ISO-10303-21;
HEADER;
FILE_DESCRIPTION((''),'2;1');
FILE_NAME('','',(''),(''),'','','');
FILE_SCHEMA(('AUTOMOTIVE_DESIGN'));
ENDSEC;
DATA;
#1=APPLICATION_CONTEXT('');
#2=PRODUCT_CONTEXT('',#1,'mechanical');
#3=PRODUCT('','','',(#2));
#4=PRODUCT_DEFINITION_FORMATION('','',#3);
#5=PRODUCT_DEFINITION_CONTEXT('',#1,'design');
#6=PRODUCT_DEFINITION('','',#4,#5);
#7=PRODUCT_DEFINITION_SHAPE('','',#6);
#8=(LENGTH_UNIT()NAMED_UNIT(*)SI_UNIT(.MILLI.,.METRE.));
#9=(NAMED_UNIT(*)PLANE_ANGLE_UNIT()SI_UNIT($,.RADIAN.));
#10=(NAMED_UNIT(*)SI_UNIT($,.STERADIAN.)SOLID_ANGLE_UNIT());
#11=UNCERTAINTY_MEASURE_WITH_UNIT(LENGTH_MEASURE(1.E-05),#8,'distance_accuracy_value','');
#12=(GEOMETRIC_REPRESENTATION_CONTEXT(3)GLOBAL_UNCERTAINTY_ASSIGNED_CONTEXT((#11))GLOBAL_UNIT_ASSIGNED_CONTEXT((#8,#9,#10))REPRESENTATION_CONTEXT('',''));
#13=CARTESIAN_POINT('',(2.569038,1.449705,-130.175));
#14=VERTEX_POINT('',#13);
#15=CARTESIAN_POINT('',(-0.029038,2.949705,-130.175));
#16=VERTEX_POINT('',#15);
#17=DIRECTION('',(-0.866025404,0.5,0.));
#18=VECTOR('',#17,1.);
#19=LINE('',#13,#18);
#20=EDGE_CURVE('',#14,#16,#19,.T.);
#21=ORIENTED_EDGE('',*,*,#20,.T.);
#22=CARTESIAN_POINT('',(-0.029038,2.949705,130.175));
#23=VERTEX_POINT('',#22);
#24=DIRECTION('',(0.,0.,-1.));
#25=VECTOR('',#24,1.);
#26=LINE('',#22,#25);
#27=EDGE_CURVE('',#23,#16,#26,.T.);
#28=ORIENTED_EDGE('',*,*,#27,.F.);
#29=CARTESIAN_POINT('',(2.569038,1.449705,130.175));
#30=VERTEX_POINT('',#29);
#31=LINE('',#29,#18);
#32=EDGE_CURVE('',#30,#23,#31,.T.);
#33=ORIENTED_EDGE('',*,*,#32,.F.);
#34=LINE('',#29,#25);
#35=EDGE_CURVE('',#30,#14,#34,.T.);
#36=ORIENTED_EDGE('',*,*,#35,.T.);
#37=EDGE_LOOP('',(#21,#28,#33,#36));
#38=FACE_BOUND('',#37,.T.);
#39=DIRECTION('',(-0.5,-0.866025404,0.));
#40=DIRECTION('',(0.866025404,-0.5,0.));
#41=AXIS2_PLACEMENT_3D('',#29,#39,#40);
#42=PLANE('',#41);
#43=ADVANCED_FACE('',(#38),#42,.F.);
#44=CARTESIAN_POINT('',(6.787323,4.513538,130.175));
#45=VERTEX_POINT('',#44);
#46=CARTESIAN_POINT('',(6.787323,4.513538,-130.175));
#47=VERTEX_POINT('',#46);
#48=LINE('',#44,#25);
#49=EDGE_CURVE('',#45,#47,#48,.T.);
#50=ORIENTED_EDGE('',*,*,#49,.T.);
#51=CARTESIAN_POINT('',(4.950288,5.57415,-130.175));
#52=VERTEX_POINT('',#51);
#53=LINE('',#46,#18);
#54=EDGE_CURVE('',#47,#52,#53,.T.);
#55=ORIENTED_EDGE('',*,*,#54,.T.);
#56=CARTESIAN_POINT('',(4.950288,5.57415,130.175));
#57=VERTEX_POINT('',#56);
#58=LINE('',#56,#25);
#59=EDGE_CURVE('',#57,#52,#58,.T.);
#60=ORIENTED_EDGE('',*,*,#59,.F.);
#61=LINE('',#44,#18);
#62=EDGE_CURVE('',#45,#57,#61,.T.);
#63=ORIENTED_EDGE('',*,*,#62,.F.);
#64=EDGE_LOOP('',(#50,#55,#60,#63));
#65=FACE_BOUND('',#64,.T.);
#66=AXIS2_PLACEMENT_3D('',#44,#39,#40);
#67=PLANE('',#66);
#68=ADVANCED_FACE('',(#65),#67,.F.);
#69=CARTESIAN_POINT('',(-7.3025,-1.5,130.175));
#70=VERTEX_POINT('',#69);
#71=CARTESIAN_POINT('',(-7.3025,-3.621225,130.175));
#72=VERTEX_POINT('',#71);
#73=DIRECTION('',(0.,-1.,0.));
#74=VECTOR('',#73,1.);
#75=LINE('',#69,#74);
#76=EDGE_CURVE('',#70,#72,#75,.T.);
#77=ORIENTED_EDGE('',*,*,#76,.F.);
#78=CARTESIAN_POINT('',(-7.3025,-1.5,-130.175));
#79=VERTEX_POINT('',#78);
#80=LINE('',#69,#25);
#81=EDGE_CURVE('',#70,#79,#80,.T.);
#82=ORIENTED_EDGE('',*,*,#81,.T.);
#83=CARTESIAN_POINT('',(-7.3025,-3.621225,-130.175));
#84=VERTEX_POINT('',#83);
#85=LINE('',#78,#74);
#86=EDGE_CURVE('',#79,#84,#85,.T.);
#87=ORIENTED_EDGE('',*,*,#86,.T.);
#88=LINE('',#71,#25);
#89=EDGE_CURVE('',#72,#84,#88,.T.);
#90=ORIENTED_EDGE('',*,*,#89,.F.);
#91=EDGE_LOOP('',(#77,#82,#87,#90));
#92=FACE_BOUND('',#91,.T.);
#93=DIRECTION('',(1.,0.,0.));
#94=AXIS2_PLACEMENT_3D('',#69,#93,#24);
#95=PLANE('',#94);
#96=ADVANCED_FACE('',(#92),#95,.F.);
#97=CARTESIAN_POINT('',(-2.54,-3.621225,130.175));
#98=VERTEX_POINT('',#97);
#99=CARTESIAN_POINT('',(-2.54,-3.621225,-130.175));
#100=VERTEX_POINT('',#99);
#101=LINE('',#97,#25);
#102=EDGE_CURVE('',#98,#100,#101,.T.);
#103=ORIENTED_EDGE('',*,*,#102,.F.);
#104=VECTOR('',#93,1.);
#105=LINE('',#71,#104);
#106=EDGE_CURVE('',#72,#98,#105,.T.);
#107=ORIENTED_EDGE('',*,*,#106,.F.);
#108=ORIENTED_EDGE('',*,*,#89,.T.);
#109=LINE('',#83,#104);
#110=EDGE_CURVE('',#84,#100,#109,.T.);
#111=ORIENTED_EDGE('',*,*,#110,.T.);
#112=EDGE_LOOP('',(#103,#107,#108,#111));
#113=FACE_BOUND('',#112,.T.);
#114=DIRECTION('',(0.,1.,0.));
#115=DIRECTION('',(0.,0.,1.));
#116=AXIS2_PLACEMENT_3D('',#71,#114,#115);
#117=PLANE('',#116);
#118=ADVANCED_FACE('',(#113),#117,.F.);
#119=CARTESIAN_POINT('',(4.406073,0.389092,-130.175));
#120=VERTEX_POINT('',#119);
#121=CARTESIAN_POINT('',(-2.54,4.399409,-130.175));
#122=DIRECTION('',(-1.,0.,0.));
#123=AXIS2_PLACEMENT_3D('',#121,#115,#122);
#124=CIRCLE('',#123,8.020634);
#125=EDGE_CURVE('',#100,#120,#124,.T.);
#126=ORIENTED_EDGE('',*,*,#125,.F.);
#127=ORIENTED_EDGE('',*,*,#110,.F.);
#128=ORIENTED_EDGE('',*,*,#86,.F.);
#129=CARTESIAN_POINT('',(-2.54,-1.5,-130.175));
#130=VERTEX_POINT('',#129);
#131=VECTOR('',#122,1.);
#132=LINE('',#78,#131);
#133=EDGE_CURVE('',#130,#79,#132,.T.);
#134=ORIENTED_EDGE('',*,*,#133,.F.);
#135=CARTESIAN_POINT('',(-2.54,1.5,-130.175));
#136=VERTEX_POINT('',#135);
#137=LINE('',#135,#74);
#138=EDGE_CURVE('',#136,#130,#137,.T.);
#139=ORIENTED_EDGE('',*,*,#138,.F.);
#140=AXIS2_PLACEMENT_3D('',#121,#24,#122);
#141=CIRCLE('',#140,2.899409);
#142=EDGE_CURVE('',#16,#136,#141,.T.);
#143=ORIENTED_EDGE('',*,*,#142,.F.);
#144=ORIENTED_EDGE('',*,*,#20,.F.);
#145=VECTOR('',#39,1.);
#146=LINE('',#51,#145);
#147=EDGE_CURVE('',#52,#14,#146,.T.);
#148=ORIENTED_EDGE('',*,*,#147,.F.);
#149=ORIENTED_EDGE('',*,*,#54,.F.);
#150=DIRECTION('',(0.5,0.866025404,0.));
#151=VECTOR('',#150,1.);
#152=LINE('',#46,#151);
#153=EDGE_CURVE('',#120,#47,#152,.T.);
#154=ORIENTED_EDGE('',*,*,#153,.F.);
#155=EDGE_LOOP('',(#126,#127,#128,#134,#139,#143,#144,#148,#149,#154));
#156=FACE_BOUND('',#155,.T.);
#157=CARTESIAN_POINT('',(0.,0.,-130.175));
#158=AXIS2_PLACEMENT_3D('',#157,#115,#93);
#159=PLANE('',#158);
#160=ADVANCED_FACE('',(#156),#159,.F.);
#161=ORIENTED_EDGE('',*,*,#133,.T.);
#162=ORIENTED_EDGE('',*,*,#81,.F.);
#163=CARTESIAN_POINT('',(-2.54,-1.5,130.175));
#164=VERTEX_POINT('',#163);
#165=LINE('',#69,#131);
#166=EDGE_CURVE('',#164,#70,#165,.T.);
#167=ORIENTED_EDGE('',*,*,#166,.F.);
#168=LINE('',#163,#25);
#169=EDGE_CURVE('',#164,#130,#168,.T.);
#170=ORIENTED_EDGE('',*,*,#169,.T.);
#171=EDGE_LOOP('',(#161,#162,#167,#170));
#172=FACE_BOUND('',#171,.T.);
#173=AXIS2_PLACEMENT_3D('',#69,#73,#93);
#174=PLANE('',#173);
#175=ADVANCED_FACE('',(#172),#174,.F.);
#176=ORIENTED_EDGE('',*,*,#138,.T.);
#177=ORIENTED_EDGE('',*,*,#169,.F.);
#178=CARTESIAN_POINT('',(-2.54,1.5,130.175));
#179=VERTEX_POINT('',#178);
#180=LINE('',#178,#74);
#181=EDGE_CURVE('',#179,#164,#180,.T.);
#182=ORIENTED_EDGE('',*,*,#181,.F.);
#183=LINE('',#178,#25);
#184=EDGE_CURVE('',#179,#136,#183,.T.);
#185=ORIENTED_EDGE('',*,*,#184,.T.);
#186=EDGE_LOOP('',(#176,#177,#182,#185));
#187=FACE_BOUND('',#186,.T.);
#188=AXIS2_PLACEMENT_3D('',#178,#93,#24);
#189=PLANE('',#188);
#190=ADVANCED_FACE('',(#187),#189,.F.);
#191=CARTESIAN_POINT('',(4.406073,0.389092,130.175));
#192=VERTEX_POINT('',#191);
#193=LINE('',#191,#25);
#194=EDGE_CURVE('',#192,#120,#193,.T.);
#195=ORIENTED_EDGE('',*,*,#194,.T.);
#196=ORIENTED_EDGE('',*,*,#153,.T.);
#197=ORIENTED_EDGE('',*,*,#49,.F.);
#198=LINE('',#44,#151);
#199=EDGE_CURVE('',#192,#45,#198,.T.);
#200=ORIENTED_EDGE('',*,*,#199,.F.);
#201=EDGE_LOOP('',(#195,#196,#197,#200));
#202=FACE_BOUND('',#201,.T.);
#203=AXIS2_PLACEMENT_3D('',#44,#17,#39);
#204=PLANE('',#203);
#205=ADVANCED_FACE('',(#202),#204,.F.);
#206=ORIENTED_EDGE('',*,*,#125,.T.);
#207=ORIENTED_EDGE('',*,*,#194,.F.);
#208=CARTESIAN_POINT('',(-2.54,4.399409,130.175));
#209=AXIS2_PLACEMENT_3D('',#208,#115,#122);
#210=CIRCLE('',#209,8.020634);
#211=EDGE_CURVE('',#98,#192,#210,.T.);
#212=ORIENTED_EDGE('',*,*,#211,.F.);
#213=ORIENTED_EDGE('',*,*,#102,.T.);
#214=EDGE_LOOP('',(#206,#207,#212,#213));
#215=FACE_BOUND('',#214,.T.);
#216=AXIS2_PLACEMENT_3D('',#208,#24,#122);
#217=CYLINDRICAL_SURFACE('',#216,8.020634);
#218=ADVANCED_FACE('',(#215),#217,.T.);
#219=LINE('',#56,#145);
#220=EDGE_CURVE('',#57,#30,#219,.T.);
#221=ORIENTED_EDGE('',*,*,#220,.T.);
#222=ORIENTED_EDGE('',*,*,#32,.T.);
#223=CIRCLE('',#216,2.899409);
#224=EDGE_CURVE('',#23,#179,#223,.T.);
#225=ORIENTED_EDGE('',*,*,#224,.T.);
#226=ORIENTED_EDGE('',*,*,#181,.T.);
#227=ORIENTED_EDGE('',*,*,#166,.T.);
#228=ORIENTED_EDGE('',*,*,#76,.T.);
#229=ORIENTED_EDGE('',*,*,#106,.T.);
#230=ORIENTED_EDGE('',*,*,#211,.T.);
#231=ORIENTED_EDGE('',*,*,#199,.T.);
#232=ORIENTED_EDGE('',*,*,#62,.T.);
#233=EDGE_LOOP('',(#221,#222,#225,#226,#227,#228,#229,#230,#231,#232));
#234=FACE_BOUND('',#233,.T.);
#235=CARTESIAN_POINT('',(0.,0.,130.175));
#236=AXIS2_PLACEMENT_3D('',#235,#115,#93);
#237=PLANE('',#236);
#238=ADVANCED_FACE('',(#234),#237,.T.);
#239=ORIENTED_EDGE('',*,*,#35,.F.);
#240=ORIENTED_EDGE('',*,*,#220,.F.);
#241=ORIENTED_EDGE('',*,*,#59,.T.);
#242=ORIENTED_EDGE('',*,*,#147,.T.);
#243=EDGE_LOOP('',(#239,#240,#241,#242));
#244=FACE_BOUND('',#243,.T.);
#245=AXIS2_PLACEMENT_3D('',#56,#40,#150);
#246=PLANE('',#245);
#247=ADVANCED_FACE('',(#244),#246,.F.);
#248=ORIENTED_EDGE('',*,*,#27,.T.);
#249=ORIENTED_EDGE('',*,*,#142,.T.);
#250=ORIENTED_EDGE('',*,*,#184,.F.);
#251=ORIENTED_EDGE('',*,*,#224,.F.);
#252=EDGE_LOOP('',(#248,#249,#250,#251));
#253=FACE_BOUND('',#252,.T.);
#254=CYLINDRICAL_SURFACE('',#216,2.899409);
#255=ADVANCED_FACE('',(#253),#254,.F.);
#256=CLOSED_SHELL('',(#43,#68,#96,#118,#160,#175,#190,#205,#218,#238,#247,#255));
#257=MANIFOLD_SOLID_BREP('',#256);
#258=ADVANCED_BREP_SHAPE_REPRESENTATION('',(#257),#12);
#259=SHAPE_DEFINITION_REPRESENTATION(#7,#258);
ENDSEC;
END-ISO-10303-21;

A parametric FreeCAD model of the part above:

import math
import FreeCAD as App
import Part
import Sketcher
Q = App.Units.Quantity

doc = App.newDocument("Part")
params = doc.addObject("Spreadsheet::Sheet", "Params")
for row, (alias, value) in enumerate([
    ("sketch1_width", "0.1875 in"),
    ("pad1_length", "10.25 in"),
    ("sketch2_length", "0.1875 in"),
    ("pad2_length", "10.25 in"),
    ("sketch3_width", "0.1875 in"),
    ("sketch3_length", "0.1875 in"),
    ("pad3_length", "10.25 in"),
], start=1):
    params.set(f"A{row}", alias)
    params.set(f"B{row}", "=" + value)
    params.setAlias(f"B{row}", alias)

body = doc.addObject("PartDesign::Body", "Body")

# Sketch on XY plane
sketch1 = body.newObject("Sketcher::SketchObject", "Sketch")
sketch1.AttachmentSupport = (doc.getObject("XY_Plane"), [""])
sketch1.MapMode = "FlatFace"
sketch1.addGeometry(Part.LineSegment(App.Vector(-7.3, -1.5, 0), App.Vector(-7.3, -3.6, 0)), False)
sketch1.addGeometry(Part.LineSegment(App.Vector(-7.3, -3.6, 0), App.Vector(-2.5, -3.6, 0)), False)
sketch1.addGeometry(Part.LineSegment(App.Vector(-2.5, -3.6, 0), App.Vector(-2.5, -1.5, 0)), False)
sketch1.addGeometry(Part.LineSegment(App.Vector(-2.5, -1.5, 0), App.Vector(-7.3, -1.5, 0)), False)
sketch1.addConstraint(Sketcher.Constraint("Coincident", 0, 2, 1, 1))
sketch1.addConstraint(Sketcher.Constraint("Coincident", 1, 2, 2, 1))
sketch1.addConstraint(Sketcher.Constraint("Coincident", 2, 2, 3, 1))
sketch1.addConstraint(Sketcher.Constraint("Coincident", 3, 2, 0, 1))
sketch1.addConstraint(Sketcher.Constraint("Vertical", 0))
sketch1.addConstraint(Sketcher.Constraint("Horizontal", 1))
sketch1.addConstraint(Sketcher.Constraint("Vertical", 2))
sketch1.addConstraint(Sketcher.Constraint("Horizontal", 3))
sketch1.addConstraint(Sketcher.Constraint("DistanceX", 1, 2, -1, 1, Q("0.1 in")))
sketch1.addConstraint(Sketcher.Constraint("DistanceX", 1, 1, 1, 2, Q("0.1875 in")))
sketch1.addConstraint(Sketcher.Constraint("DistanceY", 2, 2, -1, 1, Q("1.5 mm")))
sketch1.addConstraint(Sketcher.Constraint("DistanceY", 0, 2, 0, 1, Q("2.121225 mm")))
sketch1.setExpression("Constraints[9]", "Params.sketch1_width")
pad1 = body.newObject("PartDesign::Pad", "Pad")
pad1.Profile = sketch1
pad1.setExpression("Length", "Params.pad1_length")
pad1.Midplane = True
body2 = doc.addObject("PartDesign::Body", "Body001")

# Sketch on XY plane
sketch2 = body2.newObject("Sketcher::SketchObject", "Sketch001")
sketch2.AttachmentSupport = (doc.getObject("XY_Plane001"), [""])
sketch2.MapMode = "FlatFace"
sketch2.addGeometry(Part.LineSegment(App.Vector(5, 5.6, 0), App.Vector(2.6, 1.4, 0)), False)
sketch2.addGeometry(Part.LineSegment(App.Vector(2.6, 1.4, 0), App.Vector(4.4, 0.4, 0)), False)
sketch2.addGeometry(Part.LineSegment(App.Vector(4.4, 0.4, 0), App.Vector(6.8, 4.5, 0)), False)
sketch2.addGeometry(Part.LineSegment(App.Vector(6.8, 4.5, 0), App.Vector(5, 5.6, 0)), False)
sketch2.addConstraint(Sketcher.Constraint("Coincident", 0, 2, 1, 1))
sketch2.addConstraint(Sketcher.Constraint("Coincident", 1, 2, 2, 1))
sketch2.addConstraint(Sketcher.Constraint("Coincident", 2, 2, 3, 1))
sketch2.addConstraint(Sketcher.Constraint("Coincident", 3, 2, 0, 1))
sketch2.addConstraint(Sketcher.Constraint("Perpendicular", 0, 1))
sketch2.addConstraint(Sketcher.Constraint("Perpendicular", 1, 2))
sketch2.addConstraint(Sketcher.Constraint("Perpendicular", 2, 3))
sketch2.addConstraint(Sketcher.Constraint("Angle", 0, Q("-120 deg")))
sketch2.addConstraint(Sketcher.Constraint("Distance", 0, Q("0.1875 in")))
sketch2.addConstraint(Sketcher.Constraint("DistanceX", -1, 1, 0, 2, Q("2.569038 mm")))
sketch2.addConstraint(Sketcher.Constraint("DistanceY", -1, 1, 1, 2, Q("0.389092 mm")))
sketch2.addConstraint(Sketcher.Constraint("DistanceY", -1, 1, 3, 2, Q("5.57415 mm")))
sketch2.setExpression("Constraints[8]", "Params.sketch2_length")
pad2 = body2.newObject("PartDesign::Pad", "Pad001")
pad2.Profile = sketch2
pad2.setExpression("Length", "Params.pad2_length")
pad2.Midplane = True
body.AllowCompound = True
doc.recompute()

boolean = body.newObject("PartDesign::Boolean", "Boolean")
boolean.Type = "Fuse"
boolean.addObjects([body2])

# Sketch on XY plane
sketch3 = body.newObject("Sketcher::SketchObject", "Sketch002")
sketch3.AttachmentSupport = (doc.getObject("XY_Plane"), [""])
sketch3.MapMode = "FlatFace"
sketch3.addGeometry(Part.LineSegment(App.Vector(-2.5, -1.5, 0), App.Vector(-7.3, -1.5, 0)), False)
sketch3.addGeometry(Part.LineSegment(App.Vector(-7.3, -1.5, 0), App.Vector(-7.3, -3.6, 0)), False)
sketch3.addGeometry(Part.LineSegment(App.Vector(-7.3, -3.6, 0), App.Vector(-2.5, -3.6, 0)), False)
sketch3.addGeometry(Part.ArcOfCircle(Part.Circle(App.Vector(-2.5, 4.4, 0), App.Vector(0, 0, 1), 8), math.radians(-90), math.radians(-30)), False)
sketch3.addGeometry(Part.LineSegment(App.Vector(4.4, 0.4, 0), App.Vector(6.8, 4.5, 0)), False)
sketch3.addGeometry(Part.LineSegment(App.Vector(6.8, 4.5, 0), App.Vector(5, 5.6, 0)), False)
sketch3.addGeometry(Part.LineSegment(App.Vector(5, 5.6, 0), App.Vector(2.6, 1.4, 0)), False)
sketch3.addGeometry(Part.LineSegment(App.Vector(2.6, 1.4, 0), App.Vector(0, 2.9, 0)), False)
sketch3.addGeometry(Part.ArcOfCircle(Part.Circle(App.Vector(-2.5, 4.4, 0), App.Vector(0, 0, 1), 2.9), math.radians(-90), math.radians(-30)), False)
sketch3.addGeometry(Part.LineSegment(App.Vector(-2.5, 1.5, 0), App.Vector(-2.5, -1.5, 0)), False)
sketch3.addConstraint(Sketcher.Constraint("Coincident", 0, 2, 1, 1))
sketch3.addConstraint(Sketcher.Constraint("Coincident", 1, 2, 2, 1))
sketch3.addConstraint(Sketcher.Constraint("Tangent", 2, 2, 3, 1))
sketch3.addConstraint(Sketcher.Constraint("Tangent", 3, 2, 4, 1))
sketch3.addConstraint(Sketcher.Constraint("Coincident", 4, 2, 5, 1))
sketch3.addConstraint(Sketcher.Constraint("Coincident", 5, 2, 6, 1))
sketch3.addConstraint(Sketcher.Constraint("Coincident", 6, 2, 7, 1))
sketch3.addConstraint(Sketcher.Constraint("Coincident", 7, 2, 8, 2))
sketch3.addConstraint(Sketcher.Constraint("Coincident", 8, 1, 9, 1))
sketch3.addConstraint(Sketcher.Constraint("Coincident", 9, 2, 0, 1))
sketch3.addConstraint(Sketcher.Constraint("Horizontal", 0))
sketch3.addConstraint(Sketcher.Constraint("Vertical", 1))
sketch3.addConstraint(Sketcher.Constraint("Horizontal", 2))
sketch3.addConstraint(Sketcher.Constraint("Vertical", 9))
sketch3.addConstraint(Sketcher.Constraint("Coincident", 8, 3, 3, 3))
sketch3.addConstraint(Sketcher.Constraint("Perpendicular", 4, 5))
sketch3.addConstraint(Sketcher.Constraint("Perpendicular", 5, 6))
sketch3.addConstraint(Sketcher.Constraint("Perpendicular", 6, 7))
sketch3.addConstraint(Sketcher.Constraint("Vertical", 2, 2, 8, 1))
sketch3.addConstraint(Sketcher.Constraint("Equal", 4, 6))
sketch3.addConstraint(Sketcher.Constraint("Angle", 4, Q("60 deg")))
sketch3.addConstraint(Sketcher.Constraint("DistanceX", 3, 3, -1, 1, Q("0.1 in")))
sketch3.addConstraint(Sketcher.Constraint("DistanceX", 0, 2, 0, 1, Q("0.1875 in")))
sketch3.addConstraint(Sketcher.Constraint("Distance", 4, Q("0.1875 in")))
sketch3.addConstraint(Sketcher.Constraint("Radius", 8, Q("2.899409 mm")))
sketch3.addConstraint(Sketcher.Constraint("DistanceY", 9, 2, 9, 1, Q("3 mm")))
sketch3.addConstraint(Sketcher.Constraint("Radius", 3, Q("8.020634 mm")))
sketch3.addConstraint(Sketcher.Constraint("Distance", 7, Q("3 mm")))
sketch3.addConstraint(Sketcher.Constraint("DistanceY", 0, 2, -1, 1, Q("1.5 mm")))
sketch3.setExpression("Constraints[22]", "Params.sketch3_width")
sketch3.setExpression("Constraints[23]", "Params.sketch3_length")
pad3 = body.newObject("PartDesign::Pad", "Pad002")
pad3.Profile = sketch3
pad3.setExpression("Length", "Params.pad3_length")
pad3.Midplane = True

doc.recompute()
